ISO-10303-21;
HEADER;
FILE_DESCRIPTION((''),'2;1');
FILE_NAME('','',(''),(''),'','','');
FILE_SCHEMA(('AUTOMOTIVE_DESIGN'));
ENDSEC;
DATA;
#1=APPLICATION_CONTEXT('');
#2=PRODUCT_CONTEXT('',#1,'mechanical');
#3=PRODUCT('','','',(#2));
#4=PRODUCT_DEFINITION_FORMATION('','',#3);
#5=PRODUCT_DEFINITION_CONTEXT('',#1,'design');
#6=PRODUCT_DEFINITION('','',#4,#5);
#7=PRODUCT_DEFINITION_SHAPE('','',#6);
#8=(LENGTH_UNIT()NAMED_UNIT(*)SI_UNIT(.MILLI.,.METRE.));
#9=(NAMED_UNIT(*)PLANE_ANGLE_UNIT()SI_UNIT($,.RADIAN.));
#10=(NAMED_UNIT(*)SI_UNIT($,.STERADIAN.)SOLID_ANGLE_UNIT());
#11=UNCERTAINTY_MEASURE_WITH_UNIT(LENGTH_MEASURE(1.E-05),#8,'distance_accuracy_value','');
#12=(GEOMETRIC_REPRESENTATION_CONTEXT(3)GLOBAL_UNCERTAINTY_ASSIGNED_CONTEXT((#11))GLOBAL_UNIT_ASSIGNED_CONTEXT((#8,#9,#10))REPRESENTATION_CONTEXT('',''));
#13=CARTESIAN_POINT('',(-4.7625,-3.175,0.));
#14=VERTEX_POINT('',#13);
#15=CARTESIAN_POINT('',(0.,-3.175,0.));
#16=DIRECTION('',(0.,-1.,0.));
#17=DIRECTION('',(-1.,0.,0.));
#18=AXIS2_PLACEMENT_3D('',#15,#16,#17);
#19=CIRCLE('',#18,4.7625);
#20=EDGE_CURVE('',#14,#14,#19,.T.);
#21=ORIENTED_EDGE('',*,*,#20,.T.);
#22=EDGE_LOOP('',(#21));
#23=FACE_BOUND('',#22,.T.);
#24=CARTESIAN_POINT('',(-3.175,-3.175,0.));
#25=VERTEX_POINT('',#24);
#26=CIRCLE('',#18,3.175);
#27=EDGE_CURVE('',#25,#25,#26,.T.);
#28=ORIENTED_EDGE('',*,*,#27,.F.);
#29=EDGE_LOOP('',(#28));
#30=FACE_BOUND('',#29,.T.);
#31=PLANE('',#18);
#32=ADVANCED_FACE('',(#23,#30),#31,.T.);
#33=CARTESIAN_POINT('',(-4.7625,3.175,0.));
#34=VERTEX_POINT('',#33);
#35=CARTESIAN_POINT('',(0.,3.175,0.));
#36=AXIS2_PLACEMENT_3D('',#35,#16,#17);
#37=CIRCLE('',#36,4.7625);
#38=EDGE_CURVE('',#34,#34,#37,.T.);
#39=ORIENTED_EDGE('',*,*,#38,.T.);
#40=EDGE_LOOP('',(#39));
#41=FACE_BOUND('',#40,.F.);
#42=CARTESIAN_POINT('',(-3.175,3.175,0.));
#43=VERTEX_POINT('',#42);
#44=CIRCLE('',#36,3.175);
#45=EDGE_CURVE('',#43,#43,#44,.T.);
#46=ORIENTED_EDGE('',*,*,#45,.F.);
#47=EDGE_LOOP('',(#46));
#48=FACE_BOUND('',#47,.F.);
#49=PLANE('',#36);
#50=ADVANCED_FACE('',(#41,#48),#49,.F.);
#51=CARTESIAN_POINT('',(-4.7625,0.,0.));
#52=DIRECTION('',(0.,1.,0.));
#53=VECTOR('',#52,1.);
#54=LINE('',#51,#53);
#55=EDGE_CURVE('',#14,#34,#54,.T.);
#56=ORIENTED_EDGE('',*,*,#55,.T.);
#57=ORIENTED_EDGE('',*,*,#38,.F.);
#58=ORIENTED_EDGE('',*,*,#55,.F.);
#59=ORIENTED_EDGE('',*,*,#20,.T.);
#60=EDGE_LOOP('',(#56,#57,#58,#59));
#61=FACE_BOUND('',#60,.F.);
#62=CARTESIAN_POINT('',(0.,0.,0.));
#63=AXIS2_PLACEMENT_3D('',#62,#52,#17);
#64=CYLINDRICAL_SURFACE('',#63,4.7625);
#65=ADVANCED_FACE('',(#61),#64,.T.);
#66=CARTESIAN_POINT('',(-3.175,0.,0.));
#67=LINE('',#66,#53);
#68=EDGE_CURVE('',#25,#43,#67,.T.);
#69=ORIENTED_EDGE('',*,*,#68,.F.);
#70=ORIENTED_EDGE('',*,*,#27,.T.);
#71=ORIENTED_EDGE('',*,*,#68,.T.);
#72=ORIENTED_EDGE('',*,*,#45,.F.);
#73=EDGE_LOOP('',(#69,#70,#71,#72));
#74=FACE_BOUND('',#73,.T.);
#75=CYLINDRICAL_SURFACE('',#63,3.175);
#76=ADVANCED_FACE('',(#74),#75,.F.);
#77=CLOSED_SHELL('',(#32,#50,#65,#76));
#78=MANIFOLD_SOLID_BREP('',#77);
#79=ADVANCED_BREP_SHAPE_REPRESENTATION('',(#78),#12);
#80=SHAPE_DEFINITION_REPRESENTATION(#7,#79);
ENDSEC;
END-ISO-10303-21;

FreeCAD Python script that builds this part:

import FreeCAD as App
import Part
import Sketcher

V = App.Vector
Q = App.Units.Quantity


def add_polygon(sketch, points):
    """Adds a closed chain of lines whose ends are joined by coincident constraints."""
    first, n = sketch.GeometryCount, len(points)
    for a, b in zip(points, points[1:] + points[:1]):
        sketch.addGeometry(Part.LineSegment(App.Vector(*a, 0), App.Vector(*b, 0)), False)
    for i in range(n):
        sketch.addConstraint(Sketcher.Constraint("Coincident", first + i, 2, first + (i + 1) % n, 1))

doc = App.newDocument("Part")
body = doc.addObject("PartDesign::Body", "Body")

# Sketch on XY plane
sketch1 = body.newObject("Sketcher::SketchObject", "Sketch")
sketch1.AttachmentSupport = (doc.getObject("XY_Plane"), [""])
sketch1.MapMode = "FlatFace"
add_polygon(sketch1, [(-4.7625, 3.175), (-4.7625, -3.175), (-3.175, -3.175), (-3.175, 3.175)])  # lines 0-3
sketch1.addConstraint([
    Sketcher.Constraint("Vertical", 0),
    Sketcher.Constraint("Horizontal", 1),
    Sketcher.Constraint("Vertical", 2),
    Sketcher.Constraint("Horizontal", 3),
    Sketcher.Constraint("DistanceY", 0, 2, 0, 1, Q("0.25 in")),
    Sketcher.Constraint("DistanceX", 1, 1, 1, 2, Q("0.0625 in")),
    Sketcher.Constraint("DistanceX", 0, 2, -1, 1, Q("0.1875 in")),
    Sketcher.Constraint("DistanceY", 0, 2, -1, 1, Q("0.125 in")),
])
revolution = body.newObject("PartDesign::Revolution", "Revolution")
revolution.Profile = sketch1
revolution.ReferenceAxis = (sketch1, ["V_Axis"])
revolution.Angle = 360

doc.recompute()
